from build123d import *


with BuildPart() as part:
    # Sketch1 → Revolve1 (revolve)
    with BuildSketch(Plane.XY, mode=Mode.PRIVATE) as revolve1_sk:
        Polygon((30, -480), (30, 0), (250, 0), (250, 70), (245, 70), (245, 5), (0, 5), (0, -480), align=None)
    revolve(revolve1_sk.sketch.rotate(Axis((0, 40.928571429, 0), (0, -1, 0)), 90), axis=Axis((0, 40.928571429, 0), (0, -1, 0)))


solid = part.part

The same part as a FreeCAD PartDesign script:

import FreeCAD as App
import Part
import Sketcher

V = App.Vector
Q = App.Units.Quantity


def add_polygon(sketch, points):
    """Adds a closed chain of lines whose ends are joined by coincident constraints."""
    first, n = sketch.GeometryCount, len(points)
    for a, b in zip(points, points[1:] + points[:1]):
        sketch.addGeometry(Part.LineSegment(App.Vector(*a, 0), App.Vector(*b, 0)), False)
    for i in range(n):
        sketch.addConstraint(Sketcher.Constraint("Coincident", first + i, 2, first + (i + 1) % n, 1))

doc = App.newDocument("Part")
body = doc.addObject("PartDesign::Body", "Body")

sketch1 = body.newObject("Sketcher::SketchObject", "Sketch")
sketch1.AttachmentSupport = (doc.getObject("XY_Plane"), [""])
sketch1.MapMode = "FlatFace"
add_polygon(sketch1, [(30, -480), (30, 0), (250, 0), (250, 70), (245, 70), (245, 5), (0, 5), (0, -480)])
sketch1.addConstraint([
    Sketcher.Constraint("Vertical", 0),
    Sketcher.Constraint("Horizontal", 1),
    Sketcher.Constraint("Vertical", 2),
    Sketcher.Constraint("Horizontal", 3),
    Sketcher.Constraint("Vertical", 4),
    Sketcher.Constraint("Horizontal", 5),
    Sketcher.Constraint("Vertical", 6),
    Sketcher.Constraint("Horizontal", 7),
    Sketcher.Constraint("PointOnObject", 0, 2, -1),
    Sketcher.Constraint("PointOnObject", 5, 2, -2),
    Sketcher.Constraint("DistanceX", 1, 1, 1, 2, Q("220 mm")),
    Sketcher.Constraint("DistanceX", 3, 2, 3, 1, Q("5 mm")),
    Sketcher.Constraint("DistanceX", 5, 2, 5, 1, Q("245 mm")),
    Sketcher.Constraint("DistanceY", 0, 1, 0, 2, Q("480 mm")),
    Sketcher.Constraint("DistanceY", 2, 1, 2, 2, Q("70 mm")),
    Sketcher.Constraint("DistanceY", 4, 2, 4, 1, Q("65 mm")),
])
revolution = body.newObject("PartDesign::Revolution", "Revolution")
revolution.Profile = sketch1
revolution.ReferenceAxis = (sketch1, ["V_Axis"])
revolution.Angle = 360

doc.recompute()
